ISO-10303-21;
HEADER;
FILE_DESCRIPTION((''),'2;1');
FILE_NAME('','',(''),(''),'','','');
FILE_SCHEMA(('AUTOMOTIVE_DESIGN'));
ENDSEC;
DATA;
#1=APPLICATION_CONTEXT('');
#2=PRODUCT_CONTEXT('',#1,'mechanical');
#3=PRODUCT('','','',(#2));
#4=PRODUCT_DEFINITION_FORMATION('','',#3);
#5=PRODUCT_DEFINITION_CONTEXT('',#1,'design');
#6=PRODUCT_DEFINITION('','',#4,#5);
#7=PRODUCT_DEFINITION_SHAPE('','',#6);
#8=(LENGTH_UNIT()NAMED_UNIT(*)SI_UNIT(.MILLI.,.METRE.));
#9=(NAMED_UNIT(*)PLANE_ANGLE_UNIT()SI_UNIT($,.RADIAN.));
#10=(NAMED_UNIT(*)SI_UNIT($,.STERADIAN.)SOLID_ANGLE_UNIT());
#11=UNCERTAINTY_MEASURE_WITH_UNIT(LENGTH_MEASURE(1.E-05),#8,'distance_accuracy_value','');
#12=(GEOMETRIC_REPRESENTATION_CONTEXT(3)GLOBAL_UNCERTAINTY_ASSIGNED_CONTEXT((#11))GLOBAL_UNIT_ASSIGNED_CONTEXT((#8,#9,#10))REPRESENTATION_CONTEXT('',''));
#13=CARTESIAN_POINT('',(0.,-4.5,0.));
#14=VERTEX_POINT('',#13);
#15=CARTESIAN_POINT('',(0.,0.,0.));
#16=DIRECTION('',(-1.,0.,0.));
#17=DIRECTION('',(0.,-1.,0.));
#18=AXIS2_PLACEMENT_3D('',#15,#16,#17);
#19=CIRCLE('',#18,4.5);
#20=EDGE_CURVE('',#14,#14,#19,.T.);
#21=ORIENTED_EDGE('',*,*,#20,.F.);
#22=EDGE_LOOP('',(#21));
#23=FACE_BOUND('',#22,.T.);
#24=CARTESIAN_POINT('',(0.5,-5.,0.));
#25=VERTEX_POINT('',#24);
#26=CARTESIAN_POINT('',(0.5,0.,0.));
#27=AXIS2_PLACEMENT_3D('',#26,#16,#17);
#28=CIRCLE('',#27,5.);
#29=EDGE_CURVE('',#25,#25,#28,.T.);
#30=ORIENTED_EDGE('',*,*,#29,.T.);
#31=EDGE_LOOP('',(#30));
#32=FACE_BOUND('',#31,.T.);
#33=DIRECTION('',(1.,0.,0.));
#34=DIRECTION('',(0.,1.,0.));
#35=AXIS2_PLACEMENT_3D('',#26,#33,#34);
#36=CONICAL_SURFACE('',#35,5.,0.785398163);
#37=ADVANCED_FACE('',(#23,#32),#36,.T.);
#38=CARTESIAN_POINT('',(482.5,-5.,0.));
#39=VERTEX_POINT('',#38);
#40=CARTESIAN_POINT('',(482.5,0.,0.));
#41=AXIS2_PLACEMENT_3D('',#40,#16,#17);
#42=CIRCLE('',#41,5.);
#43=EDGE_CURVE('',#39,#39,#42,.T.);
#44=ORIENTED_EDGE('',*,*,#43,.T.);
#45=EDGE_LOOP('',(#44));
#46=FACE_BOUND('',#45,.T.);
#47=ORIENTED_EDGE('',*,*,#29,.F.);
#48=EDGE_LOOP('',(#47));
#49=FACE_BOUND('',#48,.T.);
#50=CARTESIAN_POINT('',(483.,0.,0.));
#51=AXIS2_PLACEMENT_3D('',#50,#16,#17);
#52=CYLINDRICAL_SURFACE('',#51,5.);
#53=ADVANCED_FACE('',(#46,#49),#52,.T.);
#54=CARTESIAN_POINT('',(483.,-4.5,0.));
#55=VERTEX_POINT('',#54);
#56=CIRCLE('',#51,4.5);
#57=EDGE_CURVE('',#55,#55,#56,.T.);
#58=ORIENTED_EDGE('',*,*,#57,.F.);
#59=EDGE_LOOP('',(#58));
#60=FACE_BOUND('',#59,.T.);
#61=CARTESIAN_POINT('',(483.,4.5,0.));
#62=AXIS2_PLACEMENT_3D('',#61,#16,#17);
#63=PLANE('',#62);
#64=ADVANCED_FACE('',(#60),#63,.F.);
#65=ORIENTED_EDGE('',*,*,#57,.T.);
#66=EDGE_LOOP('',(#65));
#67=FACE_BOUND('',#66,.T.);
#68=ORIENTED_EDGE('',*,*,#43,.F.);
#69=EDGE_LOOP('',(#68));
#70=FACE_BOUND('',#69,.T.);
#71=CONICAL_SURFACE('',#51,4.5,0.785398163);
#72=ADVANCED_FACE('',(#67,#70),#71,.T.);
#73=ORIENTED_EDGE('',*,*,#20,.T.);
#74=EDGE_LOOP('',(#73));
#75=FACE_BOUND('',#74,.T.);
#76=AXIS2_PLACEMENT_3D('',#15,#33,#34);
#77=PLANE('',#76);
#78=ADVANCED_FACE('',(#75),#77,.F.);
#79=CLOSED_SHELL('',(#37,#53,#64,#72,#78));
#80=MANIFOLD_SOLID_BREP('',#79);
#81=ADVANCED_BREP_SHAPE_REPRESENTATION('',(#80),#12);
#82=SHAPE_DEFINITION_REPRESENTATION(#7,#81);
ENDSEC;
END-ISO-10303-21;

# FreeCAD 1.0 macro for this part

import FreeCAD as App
import Part
import Sketcher
from FreeCAD import Vector
Q = App.Units.Quantity

doc = App.newDocument("Part")
body = doc.addObject("PartDesign::Body", "Body")

sketch1 = doc.addObject("Sketcher::SketchObject", "Sketch")
body.addObject(sketch1)
sketch1.AttachmentSupport = (doc.XY_Plane, [""])
sketch1.MapMode = "FlatFace"
sketch1.addGeometry([
    Part.LineSegment(Vector(0, 4.5, 0), Vector(0, 0, 0)),
    Part.LineSegment(Vector(0, 0, 0), Vector(483, 0, 0)),
    Part.LineSegment(Vector(483, 0, 0), Vector(483, 4.5, 0)),
    Part.LineSegment(Vector(483, 4.5, 0), Vector(482.5, 5, 0)),
    Part.LineSegment(Vector(482.5, 5, 0), Vector(0.5, 5, 0)),
    Part.LineSegment(Vector(0.5, 5, 0), Vector(0, 4.5, 0)),
], False)
sketch1.addConstraint([
    Sketcher.Constraint("Coincident", 0, 2, 1, 1),
    Sketcher.Constraint("Coincident", 1, 2, 2, 1),
    Sketcher.Constraint("Coincident", 2, 2, 3, 1),
    Sketcher.Constraint("Coincident", 3, 2, 4, 1),
    Sketcher.Constraint("Coincident", 4, 2, 5, 1),
    Sketcher.Constraint("Coincident", 5, 2, 0, 1),
    Sketcher.Constraint("Vertical", 0),
    Sketcher.Constraint("Horizontal", 1),
    Sketcher.Constraint("Vertical", 2),
    Sketcher.Constraint("Horizontal", 4),
    Sketcher.Constraint("Coincident", 0, 2, -1, 1),
    Sketcher.Constraint("Perpendicular", 3, 5),
    Sketcher.Constraint("Horizontal", 2, 2, 5, 2),
    Sketcher.Constraint("Equal", 3, 5),
    Sketcher.Constraint("DistanceX", 1, 1, 1, 2, Q("483 mm")),
    Sketcher.Constraint("DistanceX", 4, 2, 4, 1, Q("482 mm")),
    Sketcher.Constraint("DistanceY", 0, 2, 0, 1, Q("4.5 mm")),
])
revolution = doc.addObject("PartDesign::Revolution", "Revolution")
body.addObject(revolution)
revolution.Profile = sketch1
revolution.ReferenceAxis = (sketch1, ["H_Axis"])
revolution.Angle = 360

doc.recompute()
